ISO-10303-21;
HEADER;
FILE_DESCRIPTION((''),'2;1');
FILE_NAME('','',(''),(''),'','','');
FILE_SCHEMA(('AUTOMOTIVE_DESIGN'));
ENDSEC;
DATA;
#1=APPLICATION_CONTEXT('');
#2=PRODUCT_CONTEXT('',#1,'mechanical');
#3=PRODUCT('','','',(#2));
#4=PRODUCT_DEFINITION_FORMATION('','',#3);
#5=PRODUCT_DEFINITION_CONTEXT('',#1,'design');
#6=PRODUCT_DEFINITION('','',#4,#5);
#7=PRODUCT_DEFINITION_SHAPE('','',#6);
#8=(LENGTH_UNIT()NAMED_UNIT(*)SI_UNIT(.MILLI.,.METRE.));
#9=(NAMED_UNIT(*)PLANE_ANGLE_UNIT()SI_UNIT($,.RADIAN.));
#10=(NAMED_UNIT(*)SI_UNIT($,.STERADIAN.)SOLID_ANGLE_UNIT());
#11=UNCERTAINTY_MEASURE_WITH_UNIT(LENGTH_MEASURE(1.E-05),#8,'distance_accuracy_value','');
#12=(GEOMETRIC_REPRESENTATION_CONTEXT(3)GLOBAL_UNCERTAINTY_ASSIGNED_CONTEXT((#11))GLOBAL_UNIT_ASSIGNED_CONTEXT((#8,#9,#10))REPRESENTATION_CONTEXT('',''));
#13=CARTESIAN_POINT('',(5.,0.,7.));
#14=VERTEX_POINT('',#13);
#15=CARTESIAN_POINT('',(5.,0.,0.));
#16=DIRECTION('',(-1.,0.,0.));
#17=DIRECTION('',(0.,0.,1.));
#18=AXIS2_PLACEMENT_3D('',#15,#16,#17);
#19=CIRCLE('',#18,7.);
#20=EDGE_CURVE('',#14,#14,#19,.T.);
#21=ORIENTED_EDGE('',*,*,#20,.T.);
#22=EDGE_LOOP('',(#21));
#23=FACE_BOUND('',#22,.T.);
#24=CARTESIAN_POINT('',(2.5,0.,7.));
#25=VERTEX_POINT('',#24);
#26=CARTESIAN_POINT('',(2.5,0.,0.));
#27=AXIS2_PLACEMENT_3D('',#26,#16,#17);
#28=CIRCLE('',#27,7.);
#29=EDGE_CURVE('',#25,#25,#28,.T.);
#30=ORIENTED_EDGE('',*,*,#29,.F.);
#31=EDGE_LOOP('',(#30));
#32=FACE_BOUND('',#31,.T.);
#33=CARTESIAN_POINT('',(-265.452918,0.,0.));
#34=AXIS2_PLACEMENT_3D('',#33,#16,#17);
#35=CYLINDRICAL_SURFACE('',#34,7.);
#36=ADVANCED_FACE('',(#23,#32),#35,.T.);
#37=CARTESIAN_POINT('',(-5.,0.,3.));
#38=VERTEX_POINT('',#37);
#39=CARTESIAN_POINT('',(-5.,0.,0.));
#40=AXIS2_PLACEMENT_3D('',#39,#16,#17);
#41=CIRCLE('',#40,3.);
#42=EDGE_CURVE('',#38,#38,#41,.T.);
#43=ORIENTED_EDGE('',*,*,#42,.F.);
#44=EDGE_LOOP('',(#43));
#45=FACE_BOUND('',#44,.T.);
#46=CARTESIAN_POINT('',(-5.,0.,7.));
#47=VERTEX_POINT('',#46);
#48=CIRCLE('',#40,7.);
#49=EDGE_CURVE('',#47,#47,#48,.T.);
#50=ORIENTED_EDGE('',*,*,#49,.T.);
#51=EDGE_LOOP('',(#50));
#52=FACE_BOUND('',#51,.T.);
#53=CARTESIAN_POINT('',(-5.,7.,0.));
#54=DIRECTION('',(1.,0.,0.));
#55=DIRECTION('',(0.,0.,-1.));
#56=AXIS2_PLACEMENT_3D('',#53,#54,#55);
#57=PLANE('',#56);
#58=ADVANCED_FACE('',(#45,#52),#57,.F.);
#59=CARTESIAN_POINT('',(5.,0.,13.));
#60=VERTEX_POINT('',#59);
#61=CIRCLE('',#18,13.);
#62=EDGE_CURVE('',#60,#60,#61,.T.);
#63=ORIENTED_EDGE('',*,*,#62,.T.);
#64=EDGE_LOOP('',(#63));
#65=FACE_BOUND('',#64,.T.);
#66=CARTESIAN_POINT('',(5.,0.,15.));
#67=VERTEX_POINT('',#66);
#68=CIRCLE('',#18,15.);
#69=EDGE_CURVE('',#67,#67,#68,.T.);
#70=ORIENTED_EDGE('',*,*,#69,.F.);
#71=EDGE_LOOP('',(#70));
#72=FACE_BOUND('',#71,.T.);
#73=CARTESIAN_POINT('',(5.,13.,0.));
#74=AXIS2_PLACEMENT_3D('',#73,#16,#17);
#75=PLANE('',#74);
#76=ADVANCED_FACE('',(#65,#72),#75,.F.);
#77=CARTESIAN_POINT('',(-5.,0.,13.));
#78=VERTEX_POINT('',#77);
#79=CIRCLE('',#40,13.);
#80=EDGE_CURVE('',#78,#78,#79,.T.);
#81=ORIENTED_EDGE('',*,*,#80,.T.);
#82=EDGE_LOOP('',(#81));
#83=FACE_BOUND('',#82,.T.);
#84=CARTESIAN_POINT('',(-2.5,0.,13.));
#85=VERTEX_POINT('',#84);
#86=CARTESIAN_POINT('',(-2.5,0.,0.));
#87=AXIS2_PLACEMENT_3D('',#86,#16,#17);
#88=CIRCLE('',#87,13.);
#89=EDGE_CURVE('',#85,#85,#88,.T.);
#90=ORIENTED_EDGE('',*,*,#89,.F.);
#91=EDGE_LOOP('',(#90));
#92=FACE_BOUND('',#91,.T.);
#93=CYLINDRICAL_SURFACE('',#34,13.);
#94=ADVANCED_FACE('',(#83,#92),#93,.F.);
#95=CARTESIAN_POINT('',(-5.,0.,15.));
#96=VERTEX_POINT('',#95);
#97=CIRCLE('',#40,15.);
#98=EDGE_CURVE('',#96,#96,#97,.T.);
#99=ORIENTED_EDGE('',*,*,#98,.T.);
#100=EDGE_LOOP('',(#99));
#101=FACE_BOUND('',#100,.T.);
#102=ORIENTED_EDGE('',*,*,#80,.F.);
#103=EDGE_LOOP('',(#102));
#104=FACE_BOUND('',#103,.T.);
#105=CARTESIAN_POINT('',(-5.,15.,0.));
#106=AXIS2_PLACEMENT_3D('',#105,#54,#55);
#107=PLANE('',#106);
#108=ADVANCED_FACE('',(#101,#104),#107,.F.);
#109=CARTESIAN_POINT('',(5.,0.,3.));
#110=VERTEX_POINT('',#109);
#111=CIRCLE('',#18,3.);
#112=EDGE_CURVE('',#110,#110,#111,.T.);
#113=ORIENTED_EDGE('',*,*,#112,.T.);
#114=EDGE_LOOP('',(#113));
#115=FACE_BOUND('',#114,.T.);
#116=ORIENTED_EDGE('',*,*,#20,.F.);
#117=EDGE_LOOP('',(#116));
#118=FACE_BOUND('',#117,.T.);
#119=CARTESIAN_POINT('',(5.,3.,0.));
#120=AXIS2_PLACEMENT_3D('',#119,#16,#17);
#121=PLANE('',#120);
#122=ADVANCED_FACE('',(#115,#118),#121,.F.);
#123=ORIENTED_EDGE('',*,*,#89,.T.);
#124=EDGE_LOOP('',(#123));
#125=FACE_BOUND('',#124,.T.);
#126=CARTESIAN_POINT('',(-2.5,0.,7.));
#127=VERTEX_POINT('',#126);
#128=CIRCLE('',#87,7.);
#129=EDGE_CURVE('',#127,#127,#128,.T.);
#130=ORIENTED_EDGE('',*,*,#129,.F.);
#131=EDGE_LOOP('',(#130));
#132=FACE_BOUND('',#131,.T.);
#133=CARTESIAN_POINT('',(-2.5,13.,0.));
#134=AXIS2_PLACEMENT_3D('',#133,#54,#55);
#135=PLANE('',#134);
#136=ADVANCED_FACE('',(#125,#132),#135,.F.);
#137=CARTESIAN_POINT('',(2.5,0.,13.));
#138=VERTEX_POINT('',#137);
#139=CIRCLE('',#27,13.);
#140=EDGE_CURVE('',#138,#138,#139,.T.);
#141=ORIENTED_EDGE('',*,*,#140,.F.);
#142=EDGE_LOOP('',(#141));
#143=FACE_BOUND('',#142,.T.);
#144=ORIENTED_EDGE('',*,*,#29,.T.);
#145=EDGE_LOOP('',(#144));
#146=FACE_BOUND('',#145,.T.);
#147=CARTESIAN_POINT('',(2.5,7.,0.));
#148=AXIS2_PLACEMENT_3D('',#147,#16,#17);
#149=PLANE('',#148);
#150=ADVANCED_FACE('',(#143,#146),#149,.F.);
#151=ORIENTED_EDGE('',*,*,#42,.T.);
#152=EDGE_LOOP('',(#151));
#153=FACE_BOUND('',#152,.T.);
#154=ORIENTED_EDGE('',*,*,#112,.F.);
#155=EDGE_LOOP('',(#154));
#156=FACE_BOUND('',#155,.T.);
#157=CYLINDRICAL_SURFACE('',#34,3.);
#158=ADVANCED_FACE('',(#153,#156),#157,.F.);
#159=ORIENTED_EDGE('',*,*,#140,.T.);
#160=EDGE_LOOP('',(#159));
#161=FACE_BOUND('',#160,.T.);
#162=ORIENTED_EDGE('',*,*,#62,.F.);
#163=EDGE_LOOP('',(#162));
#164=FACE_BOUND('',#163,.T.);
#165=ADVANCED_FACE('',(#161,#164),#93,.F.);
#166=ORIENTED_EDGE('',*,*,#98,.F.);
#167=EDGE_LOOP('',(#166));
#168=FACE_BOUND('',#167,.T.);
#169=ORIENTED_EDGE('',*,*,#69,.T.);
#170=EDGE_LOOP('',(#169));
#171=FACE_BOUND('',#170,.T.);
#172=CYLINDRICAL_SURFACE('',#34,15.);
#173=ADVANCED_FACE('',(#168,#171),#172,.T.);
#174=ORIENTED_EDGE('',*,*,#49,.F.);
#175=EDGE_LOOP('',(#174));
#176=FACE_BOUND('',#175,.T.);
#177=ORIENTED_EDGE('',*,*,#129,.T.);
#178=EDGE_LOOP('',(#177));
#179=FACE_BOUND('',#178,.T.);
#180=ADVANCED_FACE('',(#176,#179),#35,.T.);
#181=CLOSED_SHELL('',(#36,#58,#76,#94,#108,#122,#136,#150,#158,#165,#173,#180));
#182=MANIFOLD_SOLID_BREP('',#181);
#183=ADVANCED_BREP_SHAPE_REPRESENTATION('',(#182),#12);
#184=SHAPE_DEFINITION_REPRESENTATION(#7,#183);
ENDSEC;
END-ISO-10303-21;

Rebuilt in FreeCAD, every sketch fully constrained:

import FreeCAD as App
import Part
import Sketcher
from FreeCAD import Vector


def add_polygon(sketch, points):
    """Adds a closed chain of lines whose ends are joined by coincident constraints."""
    first, n = sketch.GeometryCount, len(points)
    for a, b in zip(points, points[1:] + points[:1]):
        sketch.addGeometry(Part.LineSegment(App.Vector(*a, 0), App.Vector(*b, 0)), False)
    for i in range(n):
        sketch.addConstraint(Sketcher.Constraint("Coincident", first + i, 2, first + (i + 1) % n, 1))

doc = App.newDocument("Part")
body = doc.addObject("PartDesign::Body", "Body")

sketch1 = body.newObject("Sketcher::SketchObject", "Sketch")
sketch1.AttachmentSupport = (doc.getObject("XY_Plane"), [""])
sketch1.MapMode = "FlatFace"
add_polygon(sketch1, [(-5, 3), (5, 3), (5, 7), (2.5, 7), (2.5, 13), (5, 13), (5, 15), (-5, 15), (-5, 13), (-2.5, 13), (-2.5, 7), (-5, 7)])
sketch1.addConstraint([
    Sketcher.Constraint("Horizontal", 0),
    Sketcher.Constraint("Vertical", 1),
    Sketcher.Constraint("Horizontal", 2),
    Sketcher.Constraint("Vertical", 3),
    Sketcher.Constraint("Horizontal", 4),
    Sketcher.Constraint("Vertical", 5),
    Sketcher.Constraint("Horizontal", 6),
    Sketcher.Constraint("Vertical", 7),
    Sketcher.Constraint("Horizontal", 8),
    Sketcher.Constraint("Vertical", 9),
    Sketcher.Constraint("Horizontal", 10),
    Sketcher.Constraint("Vertical", 11),
    Sketcher.Constraint("Symmetric", 4, 2, 7, 2, -2),
    Sketcher.Constraint("Symmetric", 2, 2, 9, 2, -2),
    Sketcher.Constraint("Vertical", 1, 2, 4, 2),
    Sketcher.Constraint("Vertical", 7, 2, 10, 2),
    Sketcher.Constraint("DistanceX", 0, 1, 0, 2, 10.0),
    Sketcher.Constraint("DistanceY", 1, 1, 1, 2, 4.0),
    Sketcher.Constraint("DistanceY", 3, 1, 3, 2, 6.0),
    Sketcher.Constraint("DistanceY", 5, 1, 5, 2, 2.0),
    Sketcher.Constraint("DistanceX", 2, 2, 2, 1, 2.5),
    Sketcher.Constraint("DistanceY", -1, 1, 0, 2, 3.0),
])
revolution = body.newObject("PartDesign::Revolution", "Revolution")
revolution.Profile = sketch1
revolution.ReferenceAxis = (sketch1, ["H_Axis"])
revolution.Angle = 360

doc.recompute()
